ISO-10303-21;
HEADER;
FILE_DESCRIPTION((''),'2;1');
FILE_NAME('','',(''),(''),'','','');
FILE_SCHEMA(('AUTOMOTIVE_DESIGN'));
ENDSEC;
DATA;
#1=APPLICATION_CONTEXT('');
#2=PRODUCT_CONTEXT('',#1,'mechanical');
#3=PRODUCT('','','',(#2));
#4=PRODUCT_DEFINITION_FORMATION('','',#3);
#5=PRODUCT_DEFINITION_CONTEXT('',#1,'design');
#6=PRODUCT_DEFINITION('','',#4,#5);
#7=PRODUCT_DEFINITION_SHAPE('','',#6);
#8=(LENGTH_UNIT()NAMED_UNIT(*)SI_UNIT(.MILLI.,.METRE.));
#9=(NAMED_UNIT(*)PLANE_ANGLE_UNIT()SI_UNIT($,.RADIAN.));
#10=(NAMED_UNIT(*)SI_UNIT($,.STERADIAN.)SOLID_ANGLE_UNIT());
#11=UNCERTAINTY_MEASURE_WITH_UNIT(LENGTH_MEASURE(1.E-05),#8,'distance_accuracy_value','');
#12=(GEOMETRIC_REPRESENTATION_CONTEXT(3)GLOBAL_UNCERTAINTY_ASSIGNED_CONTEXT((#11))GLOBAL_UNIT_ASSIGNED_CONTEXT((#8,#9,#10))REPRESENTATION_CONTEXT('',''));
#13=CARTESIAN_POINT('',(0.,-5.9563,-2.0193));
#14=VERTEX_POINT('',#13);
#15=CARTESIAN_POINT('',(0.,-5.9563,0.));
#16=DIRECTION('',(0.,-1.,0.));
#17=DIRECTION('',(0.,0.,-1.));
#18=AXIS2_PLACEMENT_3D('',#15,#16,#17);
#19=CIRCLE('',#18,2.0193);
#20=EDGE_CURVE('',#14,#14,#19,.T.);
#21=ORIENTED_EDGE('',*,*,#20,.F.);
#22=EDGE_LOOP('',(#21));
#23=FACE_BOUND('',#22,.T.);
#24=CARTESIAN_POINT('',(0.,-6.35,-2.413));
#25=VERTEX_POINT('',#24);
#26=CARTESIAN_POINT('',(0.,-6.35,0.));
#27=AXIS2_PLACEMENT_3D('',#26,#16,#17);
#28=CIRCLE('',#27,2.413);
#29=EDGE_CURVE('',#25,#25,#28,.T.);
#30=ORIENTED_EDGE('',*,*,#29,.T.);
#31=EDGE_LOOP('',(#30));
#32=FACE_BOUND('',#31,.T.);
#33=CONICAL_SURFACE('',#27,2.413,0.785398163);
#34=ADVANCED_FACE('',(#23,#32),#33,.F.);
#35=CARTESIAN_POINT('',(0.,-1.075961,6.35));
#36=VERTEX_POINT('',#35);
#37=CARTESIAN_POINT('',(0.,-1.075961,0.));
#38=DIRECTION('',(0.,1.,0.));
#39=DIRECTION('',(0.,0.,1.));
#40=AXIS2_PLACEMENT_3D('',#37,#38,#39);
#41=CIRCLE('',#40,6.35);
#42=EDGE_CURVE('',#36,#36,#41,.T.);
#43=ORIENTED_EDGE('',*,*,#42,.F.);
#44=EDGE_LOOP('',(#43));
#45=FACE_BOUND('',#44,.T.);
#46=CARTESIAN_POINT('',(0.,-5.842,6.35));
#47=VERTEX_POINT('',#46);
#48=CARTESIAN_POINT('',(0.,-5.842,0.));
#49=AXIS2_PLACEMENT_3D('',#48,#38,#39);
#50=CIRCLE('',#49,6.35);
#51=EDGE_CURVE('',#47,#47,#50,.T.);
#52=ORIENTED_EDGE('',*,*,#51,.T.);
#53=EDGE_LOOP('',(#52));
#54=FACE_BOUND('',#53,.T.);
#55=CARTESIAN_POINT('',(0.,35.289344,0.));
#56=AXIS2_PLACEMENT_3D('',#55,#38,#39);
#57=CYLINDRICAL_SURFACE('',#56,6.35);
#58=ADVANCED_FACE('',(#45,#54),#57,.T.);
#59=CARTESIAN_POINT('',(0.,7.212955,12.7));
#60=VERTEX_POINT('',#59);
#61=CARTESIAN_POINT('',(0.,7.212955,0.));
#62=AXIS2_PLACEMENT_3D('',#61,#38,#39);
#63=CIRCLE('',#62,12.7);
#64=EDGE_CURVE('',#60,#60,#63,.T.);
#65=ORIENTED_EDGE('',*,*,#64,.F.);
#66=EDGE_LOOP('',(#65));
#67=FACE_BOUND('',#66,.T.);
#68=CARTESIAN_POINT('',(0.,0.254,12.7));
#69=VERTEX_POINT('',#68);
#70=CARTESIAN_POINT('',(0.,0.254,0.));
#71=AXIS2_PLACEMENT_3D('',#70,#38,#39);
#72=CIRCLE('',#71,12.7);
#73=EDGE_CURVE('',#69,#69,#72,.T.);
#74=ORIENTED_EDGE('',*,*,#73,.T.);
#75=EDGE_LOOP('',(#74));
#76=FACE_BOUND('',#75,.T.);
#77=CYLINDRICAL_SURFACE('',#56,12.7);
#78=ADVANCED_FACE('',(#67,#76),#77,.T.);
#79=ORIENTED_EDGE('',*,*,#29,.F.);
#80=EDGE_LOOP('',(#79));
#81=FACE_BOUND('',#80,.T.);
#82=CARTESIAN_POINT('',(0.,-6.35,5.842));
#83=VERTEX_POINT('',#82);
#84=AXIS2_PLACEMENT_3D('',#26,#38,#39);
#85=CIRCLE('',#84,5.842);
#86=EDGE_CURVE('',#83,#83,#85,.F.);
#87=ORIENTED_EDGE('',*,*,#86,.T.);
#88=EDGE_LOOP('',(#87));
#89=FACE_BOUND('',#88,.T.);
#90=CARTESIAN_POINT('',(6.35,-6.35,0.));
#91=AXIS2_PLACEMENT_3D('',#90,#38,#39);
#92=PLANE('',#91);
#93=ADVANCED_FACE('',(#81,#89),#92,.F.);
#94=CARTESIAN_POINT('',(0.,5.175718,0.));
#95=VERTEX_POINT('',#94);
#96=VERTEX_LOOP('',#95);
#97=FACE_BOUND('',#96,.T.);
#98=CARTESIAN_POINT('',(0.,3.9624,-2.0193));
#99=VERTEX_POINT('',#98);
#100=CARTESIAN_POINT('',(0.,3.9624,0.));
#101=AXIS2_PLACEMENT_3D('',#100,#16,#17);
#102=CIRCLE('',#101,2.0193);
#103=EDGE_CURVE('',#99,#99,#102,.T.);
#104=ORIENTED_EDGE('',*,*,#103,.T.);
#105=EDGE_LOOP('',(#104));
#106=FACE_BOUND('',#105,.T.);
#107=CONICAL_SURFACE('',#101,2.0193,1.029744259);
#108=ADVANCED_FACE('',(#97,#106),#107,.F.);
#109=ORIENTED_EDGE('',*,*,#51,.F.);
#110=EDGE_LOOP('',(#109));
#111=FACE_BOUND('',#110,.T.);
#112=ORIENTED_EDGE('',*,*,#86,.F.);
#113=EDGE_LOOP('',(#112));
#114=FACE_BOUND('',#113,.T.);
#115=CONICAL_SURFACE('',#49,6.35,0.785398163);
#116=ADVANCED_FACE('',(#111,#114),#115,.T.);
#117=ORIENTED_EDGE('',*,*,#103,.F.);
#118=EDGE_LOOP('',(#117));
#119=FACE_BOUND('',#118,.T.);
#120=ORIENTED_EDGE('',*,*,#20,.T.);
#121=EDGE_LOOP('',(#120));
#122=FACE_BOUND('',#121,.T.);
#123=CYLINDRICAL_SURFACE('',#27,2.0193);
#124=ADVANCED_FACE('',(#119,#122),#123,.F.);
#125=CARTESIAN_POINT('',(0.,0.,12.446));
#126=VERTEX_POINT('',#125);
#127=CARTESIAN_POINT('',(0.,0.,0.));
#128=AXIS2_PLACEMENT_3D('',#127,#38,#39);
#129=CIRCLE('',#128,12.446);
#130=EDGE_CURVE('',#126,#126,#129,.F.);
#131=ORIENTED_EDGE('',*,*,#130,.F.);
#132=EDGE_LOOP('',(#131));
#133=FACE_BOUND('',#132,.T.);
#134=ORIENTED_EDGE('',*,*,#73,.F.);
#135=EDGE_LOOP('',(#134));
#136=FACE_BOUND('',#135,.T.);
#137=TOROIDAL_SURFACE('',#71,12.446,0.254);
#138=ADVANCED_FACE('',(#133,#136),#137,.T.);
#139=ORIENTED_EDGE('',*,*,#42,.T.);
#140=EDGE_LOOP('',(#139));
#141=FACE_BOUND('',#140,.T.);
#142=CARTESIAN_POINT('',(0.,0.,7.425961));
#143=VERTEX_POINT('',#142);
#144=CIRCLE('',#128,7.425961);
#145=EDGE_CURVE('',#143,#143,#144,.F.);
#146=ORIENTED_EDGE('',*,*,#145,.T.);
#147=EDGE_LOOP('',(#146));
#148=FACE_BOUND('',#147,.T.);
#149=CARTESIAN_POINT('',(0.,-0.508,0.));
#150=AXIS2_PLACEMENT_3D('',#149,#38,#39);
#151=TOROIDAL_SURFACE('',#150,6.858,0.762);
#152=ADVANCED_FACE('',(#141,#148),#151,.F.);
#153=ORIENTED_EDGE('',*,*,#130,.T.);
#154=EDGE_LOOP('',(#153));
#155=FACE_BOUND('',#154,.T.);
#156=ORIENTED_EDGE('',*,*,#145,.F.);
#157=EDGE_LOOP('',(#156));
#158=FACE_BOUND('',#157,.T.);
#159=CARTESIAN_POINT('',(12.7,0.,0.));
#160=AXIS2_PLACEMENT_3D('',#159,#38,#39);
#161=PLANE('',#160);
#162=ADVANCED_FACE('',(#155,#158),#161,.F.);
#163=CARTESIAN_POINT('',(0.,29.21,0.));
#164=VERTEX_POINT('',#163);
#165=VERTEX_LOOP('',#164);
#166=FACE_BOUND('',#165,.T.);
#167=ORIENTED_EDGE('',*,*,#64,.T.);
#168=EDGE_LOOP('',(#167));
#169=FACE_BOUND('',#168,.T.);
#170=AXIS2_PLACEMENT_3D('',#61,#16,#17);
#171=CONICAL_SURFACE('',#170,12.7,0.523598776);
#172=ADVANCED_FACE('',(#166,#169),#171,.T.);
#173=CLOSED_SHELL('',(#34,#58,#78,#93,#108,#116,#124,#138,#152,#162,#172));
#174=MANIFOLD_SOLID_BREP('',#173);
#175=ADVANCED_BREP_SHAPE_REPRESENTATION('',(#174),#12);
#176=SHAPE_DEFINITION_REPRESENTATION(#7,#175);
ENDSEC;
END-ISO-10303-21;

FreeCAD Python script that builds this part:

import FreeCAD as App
import Part
import Sketcher
from FreeCAD import Vector
Q = App.Units.Quantity


def edges_at(feature, points):
    """Names of the edges that pass closest to the given points."""
    edges = feature.Shape.Edges
    near = lambda p: min(range(len(edges)), key=lambda i: edges[i].distToShape(Part.Vertex(*p))[0])
    return sorted({f"Edge{near(p) + 1}" for p in points})


def add_polygon(sketch, points):
    """Adds a closed chain of lines whose ends are joined by coincident constraints."""
    first, n = sketch.GeometryCount, len(points)
    for a, b in zip(points, points[1:] + points[:1]):
        sketch.addGeometry(Part.LineSegment(App.Vector(*a, 0), App.Vector(*b, 0)), False)
    for i in range(n):
        sketch.addConstraint(Sketcher.Constraint("Coincident", first + i, 2, first + (i + 1) % n, 1))

doc = App.newDocument("Part")
body = doc.addObject("PartDesign::Body", "Body")

sketch1 = body.newObject("Sketcher::SketchObject", "Sketch")
sketch1.AttachmentSupport = (doc.getObject("XY_Plane"), [""])
sketch1.MapMode = "FlatFace"
add_polygon(sketch1, [(6.35, 0), (12.7, 0), (12.7, 7.212955), (0, 29.21), (0, -6.35), (6.35, -6.35)])
sketch1.addConstraint([
    Sketcher.Constraint("Horizontal", 0),
    Sketcher.Constraint("Vertical", 1),
    Sketcher.Constraint("Vertical", 3),
    Sketcher.Constraint("Horizontal", 4),
    Sketcher.Constraint("Vertical", 5),
    Sketcher.Constraint("PointOnObject", 0, 2, -1),
    Sketcher.Constraint("PointOnObject", 2, 2, -2),
    Sketcher.Constraint("Equal", 0, 4),
    Sketcher.Constraint("Equal", 4, 5),
    Sketcher.Constraint("Distance", 2, Q("1 in")),
    Sketcher.Constraint("DistanceY", 3, 2, 3, 1, Q("1.4 in")),
    Sketcher.Constraint("Angle", 2, Q("120 deg")),
])
revolution = body.newObject("PartDesign::Revolution", "Revolution")
revolution.Profile = sketch1
revolution.ReferenceAxis = (sketch1, ["V_Axis"])
revolution.Angle = 360

sketch2 = body.newObject("Sketcher::SketchObject", "Sketch001")
sketch2.AttachmentSupport = (doc.getObject("XY_Plane"), [""])
sketch2.MapMode = "FlatFace"
sketch2.addGeometry(Part.Circle(Vector(6.858, -0.508, 0), Vector(0, 0, 1), 0.762), False)
sketch2.addConstraint([
    Sketcher.Constraint("Diameter", 0, Q("0.06 in")),
    Sketcher.Constraint("DistanceX", -1, 1, 0, 3, Q("0.27 in")),
    Sketcher.Constraint("DistanceY", 0, 3, -1, 1, Q("0.02 in")),
])
groove = body.newObject("PartDesign::Groove", "Groove")
groove.Profile = sketch2
groove.ReferenceAxis = (sketch2, ["V_Axis"])
groove.Angle = 360
doc.recompute()

chamfer = body.newObject("PartDesign::Chamfer", "Chamfer")
chamfer.Base = (groove, edges_at(groove, [(0, -6.35, -6.35)]))
chamfer.Size = Q("0.02 in")
doc.recompute()

fillet = body.newObject("PartDesign::Fillet", "Fillet")
fillet.Base = (chamfer, edges_at(chamfer, [(0, 0, -12.7)]))
fillet.Radius = Q("0.01 in")

sketch3 = body.newObject("Sketcher::SketchObject", "Sketch002")
sketch3.AttachmentSupport = (doc.getObject("XZ_Plane"), [""])
sketch3.MapMode = "FlatFace"
sketch3.AttachmentOffset = App.Placement(Vector(0, 0, 0.25 * 25.4), App.Rotation())
sketch3.addGeometry(Part.Circle(Vector(0, 0, 0), Vector(0, 0, 1), 2.0193), False)
sketch3.addConstraint([
    Sketcher.Constraint("Coincident", 0, 3, -1, 1),
    Sketcher.Constraint("Diameter", 0, Q("0.159 in")),
])
doc.recompute()
hole = body.newObject("PartDesign::Hole", "Hole")
hole.Profile = sketch3
hole.ThreadType = "None"
hole.Diameter = Q("0.159 in")
hole.DepthType = "Dimension"
hole.Depth = Q("0.406 in")
hole.DrillPoint = "Angled"
hole.DrillPointAngle = 118
hole.HoleCutType = "Countersink"
hole.HoleCutDiameter = Q("0.19 in")
hole.HoleCutCountersinkAngle = 90

doc.recompute()
